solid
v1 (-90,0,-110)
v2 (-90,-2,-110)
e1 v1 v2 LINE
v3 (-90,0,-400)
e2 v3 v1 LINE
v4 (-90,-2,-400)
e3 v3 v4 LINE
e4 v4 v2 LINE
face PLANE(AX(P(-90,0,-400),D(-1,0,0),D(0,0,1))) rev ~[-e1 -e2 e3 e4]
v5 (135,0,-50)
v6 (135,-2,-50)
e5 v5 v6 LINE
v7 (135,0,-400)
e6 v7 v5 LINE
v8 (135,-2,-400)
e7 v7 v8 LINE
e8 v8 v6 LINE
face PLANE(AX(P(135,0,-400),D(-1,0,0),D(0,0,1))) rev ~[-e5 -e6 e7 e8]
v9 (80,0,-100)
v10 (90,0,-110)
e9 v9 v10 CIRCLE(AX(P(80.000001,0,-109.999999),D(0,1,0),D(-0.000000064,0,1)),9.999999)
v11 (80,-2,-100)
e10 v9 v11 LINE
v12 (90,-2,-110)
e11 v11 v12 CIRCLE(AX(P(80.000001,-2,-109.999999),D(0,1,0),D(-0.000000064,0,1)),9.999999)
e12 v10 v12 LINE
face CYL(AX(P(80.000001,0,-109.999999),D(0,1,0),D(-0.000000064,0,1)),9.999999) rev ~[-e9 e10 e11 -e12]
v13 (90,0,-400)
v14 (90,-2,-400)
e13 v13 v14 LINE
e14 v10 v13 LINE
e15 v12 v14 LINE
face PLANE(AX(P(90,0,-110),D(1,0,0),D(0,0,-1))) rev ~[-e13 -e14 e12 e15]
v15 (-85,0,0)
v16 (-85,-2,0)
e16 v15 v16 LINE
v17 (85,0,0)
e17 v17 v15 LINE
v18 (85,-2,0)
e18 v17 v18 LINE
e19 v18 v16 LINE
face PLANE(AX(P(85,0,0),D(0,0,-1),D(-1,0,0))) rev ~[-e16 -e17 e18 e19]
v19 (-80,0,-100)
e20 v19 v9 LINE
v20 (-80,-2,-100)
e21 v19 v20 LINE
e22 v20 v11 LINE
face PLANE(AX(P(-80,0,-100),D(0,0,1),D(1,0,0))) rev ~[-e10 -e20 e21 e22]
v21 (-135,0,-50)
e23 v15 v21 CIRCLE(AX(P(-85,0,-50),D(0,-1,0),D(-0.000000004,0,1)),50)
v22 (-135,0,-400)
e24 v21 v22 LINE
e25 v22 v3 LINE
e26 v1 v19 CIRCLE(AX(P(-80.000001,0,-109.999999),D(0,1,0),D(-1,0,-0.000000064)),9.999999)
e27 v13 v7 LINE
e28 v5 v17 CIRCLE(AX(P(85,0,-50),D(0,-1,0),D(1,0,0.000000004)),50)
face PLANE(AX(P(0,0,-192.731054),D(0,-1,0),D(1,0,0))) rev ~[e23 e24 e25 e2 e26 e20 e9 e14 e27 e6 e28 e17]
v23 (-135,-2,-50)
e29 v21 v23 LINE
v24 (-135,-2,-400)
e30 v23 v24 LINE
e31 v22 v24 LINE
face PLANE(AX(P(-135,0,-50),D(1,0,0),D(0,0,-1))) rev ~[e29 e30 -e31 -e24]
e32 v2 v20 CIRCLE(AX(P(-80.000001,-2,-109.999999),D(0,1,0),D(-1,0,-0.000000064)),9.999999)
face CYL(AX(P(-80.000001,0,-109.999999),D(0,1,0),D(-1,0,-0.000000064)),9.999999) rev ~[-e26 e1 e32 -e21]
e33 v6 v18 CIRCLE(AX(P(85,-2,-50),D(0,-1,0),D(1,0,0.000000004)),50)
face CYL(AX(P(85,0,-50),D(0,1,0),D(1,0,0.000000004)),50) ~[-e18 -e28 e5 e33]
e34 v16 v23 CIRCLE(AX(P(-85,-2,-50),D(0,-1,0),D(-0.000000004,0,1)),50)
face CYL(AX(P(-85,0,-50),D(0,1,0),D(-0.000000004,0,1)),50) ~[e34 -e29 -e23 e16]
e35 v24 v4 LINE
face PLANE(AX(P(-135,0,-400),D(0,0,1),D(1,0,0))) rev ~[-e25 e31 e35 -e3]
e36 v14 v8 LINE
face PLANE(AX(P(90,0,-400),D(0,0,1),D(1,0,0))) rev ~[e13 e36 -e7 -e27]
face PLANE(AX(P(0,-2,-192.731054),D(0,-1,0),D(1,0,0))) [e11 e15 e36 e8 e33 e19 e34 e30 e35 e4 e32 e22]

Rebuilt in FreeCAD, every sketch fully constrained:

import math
import FreeCAD as App
import Part
import Sketcher
from FreeCAD import Vector
Q = App.Units.Quantity

doc = App.newDocument("Part")
body = doc.addObject("PartDesign::Body", "Body")

# Sketch on XZ plane
sketch1 = body.newObject("Sketcher::SketchObject", "Sketch")
sketch1.AttachmentSupport = (doc.getObject("XZ_Plane"), [""])
sketch1.MapMode = "FlatFace"
sketch1.addGeometry(Part.LineSegment(Vector(85, 0, 0), Vector(-85, 0, 0)), False)
sketch1.addGeometry(Part.ArcOfCircle(Part.Circle(Vector(-85, -50, 0), Vector(0, 0, 1), 50), math.radians(90), math.radians(180)), False)
sketch1.addGeometry(Part.LineSegment(Vector(-135, -50, 0), Vector(-135, -400, 0)), False)
sketch1.addGeometry(Part.LineSegment(Vector(-135, -400, 0), Vector(-90, -400, 0)), False)
sketch1.addGeometry(Part.LineSegment(Vector(-90, -400, 0), Vector(-90, -110, 0)), False)
sketch1.addGeometry(Part.ArcOfCircle(Part.Circle(Vector(-80, -110, 0), Vector(0, 0, 1), 10), math.radians(90), math.radians(180)), False)
sketch1.addGeometry(Part.LineSegment(Vector(-80, -100, 0), Vector(80, -100, 0)), False)
sketch1.addGeometry(Part.ArcOfCircle(Part.Circle(Vector(80, -110, 0), Vector(0, 0, 1), 10), math.radians(0), math.radians(90)), False)
sketch1.addGeometry(Part.LineSegment(Vector(90, -110, 0), Vector(90, -400, 0)), False)
sketch1.addGeometry(Part.LineSegment(Vector(90, -400, 0), Vector(135, -400, 0)), False)
sketch1.addGeometry(Part.LineSegment(Vector(135, -400, 0), Vector(135, -50, 0)), False)
sketch1.addGeometry(Part.ArcOfCircle(Part.Circle(Vector(85, -50, 0), Vector(0, 0, 1), 50), math.radians(0), math.radians(90)), False)
sketch1.addConstraint(Sketcher.Constraint("Tangent", 0, 2, 1, 1))
sketch1.addConstraint(Sketcher.Constraint("Tangent", 1, 2, 2, 1))
sketch1.addConstraint(Sketcher.Constraint("Coincident", 2, 2, 3, 1))
sketch1.addConstraint(Sketcher.Constraint("Coincident", 3, 2, 4, 1))
sketch1.addConstraint(Sketcher.Constraint("Tangent", 4, 2, 5, 2))
sketch1.addConstraint(Sketcher.Constraint("Tangent", 5, 1, 6, 1))
sketch1.addConstraint(Sketcher.Constraint("Tangent", 6, 2, 7, 2))
sketch1.addConstraint(Sketcher.Constraint("Tangent", 7, 1, 8, 1))
sketch1.addConstraint(Sketcher.Constraint("Coincident", 8, 2, 9, 1))
sketch1.addConstraint(Sketcher.Constraint("Coincident", 9, 2, 10, 1))
sketch1.addConstraint(Sketcher.Constraint("Tangent", 10, 2, 11, 1))
sketch1.addConstraint(Sketcher.Constraint("Tangent", 11, 2, 0, 1))
sketch1.addConstraint(Sketcher.Constraint("Horizontal", 0))
sketch1.addConstraint(Sketcher.Constraint("Vertical", 2))
sketch1.addConstraint(Sketcher.Constraint("Horizontal", 3))
sketch1.addConstraint(Sketcher.Constraint("Vertical", 4))
sketch1.addConstraint(Sketcher.Constraint("Horizontal", 6))
sketch1.addConstraint(Sketcher.Constraint("Vertical", 8))
sketch1.addConstraint(Sketcher.Constraint("Horizontal", 9))
sketch1.addConstraint(Sketcher.Constraint("Vertical", 10))
sketch1.addConstraint(Sketcher.Constraint("Equal", 5, 7))
sketch1.addConstraint(Sketcher.Constraint("Equal", 1, 11))
sketch1.addConstraint(Sketcher.Constraint("Symmetric", 0, 2, 11, 2, -1, 1))
sketch1.addConstraint(Sketcher.Constraint("Symmetric", 3, 2, 8, 2, -2))
sketch1.addConstraint(Sketcher.Constraint("Radius", 1, Q("50 mm")))
sketch1.addConstraint(Sketcher.Constraint("Radius", 5, Q("9.999999 mm")))
sketch1.addConstraint(Sketcher.Constraint("DistanceX", 0, 2, 0, 1, Q("170 mm")))
sketch1.addConstraint(Sketcher.Constraint("DistanceX", 3, 1, 3, 2, Q("45 mm")))
sketch1.addConstraint(Sketcher.Constraint("DistanceY", 2, 2, 2, 1, Q("350 mm")))
sketch1.addConstraint(Sketcher.Constraint("DistanceY", 4, 1, 4, 2, Q("290 mm")))
pad1 = body.newObject("PartDesign::Pad", "Pad")
pad1.Profile = sketch1
pad1.Length = 2

doc.recompute()
